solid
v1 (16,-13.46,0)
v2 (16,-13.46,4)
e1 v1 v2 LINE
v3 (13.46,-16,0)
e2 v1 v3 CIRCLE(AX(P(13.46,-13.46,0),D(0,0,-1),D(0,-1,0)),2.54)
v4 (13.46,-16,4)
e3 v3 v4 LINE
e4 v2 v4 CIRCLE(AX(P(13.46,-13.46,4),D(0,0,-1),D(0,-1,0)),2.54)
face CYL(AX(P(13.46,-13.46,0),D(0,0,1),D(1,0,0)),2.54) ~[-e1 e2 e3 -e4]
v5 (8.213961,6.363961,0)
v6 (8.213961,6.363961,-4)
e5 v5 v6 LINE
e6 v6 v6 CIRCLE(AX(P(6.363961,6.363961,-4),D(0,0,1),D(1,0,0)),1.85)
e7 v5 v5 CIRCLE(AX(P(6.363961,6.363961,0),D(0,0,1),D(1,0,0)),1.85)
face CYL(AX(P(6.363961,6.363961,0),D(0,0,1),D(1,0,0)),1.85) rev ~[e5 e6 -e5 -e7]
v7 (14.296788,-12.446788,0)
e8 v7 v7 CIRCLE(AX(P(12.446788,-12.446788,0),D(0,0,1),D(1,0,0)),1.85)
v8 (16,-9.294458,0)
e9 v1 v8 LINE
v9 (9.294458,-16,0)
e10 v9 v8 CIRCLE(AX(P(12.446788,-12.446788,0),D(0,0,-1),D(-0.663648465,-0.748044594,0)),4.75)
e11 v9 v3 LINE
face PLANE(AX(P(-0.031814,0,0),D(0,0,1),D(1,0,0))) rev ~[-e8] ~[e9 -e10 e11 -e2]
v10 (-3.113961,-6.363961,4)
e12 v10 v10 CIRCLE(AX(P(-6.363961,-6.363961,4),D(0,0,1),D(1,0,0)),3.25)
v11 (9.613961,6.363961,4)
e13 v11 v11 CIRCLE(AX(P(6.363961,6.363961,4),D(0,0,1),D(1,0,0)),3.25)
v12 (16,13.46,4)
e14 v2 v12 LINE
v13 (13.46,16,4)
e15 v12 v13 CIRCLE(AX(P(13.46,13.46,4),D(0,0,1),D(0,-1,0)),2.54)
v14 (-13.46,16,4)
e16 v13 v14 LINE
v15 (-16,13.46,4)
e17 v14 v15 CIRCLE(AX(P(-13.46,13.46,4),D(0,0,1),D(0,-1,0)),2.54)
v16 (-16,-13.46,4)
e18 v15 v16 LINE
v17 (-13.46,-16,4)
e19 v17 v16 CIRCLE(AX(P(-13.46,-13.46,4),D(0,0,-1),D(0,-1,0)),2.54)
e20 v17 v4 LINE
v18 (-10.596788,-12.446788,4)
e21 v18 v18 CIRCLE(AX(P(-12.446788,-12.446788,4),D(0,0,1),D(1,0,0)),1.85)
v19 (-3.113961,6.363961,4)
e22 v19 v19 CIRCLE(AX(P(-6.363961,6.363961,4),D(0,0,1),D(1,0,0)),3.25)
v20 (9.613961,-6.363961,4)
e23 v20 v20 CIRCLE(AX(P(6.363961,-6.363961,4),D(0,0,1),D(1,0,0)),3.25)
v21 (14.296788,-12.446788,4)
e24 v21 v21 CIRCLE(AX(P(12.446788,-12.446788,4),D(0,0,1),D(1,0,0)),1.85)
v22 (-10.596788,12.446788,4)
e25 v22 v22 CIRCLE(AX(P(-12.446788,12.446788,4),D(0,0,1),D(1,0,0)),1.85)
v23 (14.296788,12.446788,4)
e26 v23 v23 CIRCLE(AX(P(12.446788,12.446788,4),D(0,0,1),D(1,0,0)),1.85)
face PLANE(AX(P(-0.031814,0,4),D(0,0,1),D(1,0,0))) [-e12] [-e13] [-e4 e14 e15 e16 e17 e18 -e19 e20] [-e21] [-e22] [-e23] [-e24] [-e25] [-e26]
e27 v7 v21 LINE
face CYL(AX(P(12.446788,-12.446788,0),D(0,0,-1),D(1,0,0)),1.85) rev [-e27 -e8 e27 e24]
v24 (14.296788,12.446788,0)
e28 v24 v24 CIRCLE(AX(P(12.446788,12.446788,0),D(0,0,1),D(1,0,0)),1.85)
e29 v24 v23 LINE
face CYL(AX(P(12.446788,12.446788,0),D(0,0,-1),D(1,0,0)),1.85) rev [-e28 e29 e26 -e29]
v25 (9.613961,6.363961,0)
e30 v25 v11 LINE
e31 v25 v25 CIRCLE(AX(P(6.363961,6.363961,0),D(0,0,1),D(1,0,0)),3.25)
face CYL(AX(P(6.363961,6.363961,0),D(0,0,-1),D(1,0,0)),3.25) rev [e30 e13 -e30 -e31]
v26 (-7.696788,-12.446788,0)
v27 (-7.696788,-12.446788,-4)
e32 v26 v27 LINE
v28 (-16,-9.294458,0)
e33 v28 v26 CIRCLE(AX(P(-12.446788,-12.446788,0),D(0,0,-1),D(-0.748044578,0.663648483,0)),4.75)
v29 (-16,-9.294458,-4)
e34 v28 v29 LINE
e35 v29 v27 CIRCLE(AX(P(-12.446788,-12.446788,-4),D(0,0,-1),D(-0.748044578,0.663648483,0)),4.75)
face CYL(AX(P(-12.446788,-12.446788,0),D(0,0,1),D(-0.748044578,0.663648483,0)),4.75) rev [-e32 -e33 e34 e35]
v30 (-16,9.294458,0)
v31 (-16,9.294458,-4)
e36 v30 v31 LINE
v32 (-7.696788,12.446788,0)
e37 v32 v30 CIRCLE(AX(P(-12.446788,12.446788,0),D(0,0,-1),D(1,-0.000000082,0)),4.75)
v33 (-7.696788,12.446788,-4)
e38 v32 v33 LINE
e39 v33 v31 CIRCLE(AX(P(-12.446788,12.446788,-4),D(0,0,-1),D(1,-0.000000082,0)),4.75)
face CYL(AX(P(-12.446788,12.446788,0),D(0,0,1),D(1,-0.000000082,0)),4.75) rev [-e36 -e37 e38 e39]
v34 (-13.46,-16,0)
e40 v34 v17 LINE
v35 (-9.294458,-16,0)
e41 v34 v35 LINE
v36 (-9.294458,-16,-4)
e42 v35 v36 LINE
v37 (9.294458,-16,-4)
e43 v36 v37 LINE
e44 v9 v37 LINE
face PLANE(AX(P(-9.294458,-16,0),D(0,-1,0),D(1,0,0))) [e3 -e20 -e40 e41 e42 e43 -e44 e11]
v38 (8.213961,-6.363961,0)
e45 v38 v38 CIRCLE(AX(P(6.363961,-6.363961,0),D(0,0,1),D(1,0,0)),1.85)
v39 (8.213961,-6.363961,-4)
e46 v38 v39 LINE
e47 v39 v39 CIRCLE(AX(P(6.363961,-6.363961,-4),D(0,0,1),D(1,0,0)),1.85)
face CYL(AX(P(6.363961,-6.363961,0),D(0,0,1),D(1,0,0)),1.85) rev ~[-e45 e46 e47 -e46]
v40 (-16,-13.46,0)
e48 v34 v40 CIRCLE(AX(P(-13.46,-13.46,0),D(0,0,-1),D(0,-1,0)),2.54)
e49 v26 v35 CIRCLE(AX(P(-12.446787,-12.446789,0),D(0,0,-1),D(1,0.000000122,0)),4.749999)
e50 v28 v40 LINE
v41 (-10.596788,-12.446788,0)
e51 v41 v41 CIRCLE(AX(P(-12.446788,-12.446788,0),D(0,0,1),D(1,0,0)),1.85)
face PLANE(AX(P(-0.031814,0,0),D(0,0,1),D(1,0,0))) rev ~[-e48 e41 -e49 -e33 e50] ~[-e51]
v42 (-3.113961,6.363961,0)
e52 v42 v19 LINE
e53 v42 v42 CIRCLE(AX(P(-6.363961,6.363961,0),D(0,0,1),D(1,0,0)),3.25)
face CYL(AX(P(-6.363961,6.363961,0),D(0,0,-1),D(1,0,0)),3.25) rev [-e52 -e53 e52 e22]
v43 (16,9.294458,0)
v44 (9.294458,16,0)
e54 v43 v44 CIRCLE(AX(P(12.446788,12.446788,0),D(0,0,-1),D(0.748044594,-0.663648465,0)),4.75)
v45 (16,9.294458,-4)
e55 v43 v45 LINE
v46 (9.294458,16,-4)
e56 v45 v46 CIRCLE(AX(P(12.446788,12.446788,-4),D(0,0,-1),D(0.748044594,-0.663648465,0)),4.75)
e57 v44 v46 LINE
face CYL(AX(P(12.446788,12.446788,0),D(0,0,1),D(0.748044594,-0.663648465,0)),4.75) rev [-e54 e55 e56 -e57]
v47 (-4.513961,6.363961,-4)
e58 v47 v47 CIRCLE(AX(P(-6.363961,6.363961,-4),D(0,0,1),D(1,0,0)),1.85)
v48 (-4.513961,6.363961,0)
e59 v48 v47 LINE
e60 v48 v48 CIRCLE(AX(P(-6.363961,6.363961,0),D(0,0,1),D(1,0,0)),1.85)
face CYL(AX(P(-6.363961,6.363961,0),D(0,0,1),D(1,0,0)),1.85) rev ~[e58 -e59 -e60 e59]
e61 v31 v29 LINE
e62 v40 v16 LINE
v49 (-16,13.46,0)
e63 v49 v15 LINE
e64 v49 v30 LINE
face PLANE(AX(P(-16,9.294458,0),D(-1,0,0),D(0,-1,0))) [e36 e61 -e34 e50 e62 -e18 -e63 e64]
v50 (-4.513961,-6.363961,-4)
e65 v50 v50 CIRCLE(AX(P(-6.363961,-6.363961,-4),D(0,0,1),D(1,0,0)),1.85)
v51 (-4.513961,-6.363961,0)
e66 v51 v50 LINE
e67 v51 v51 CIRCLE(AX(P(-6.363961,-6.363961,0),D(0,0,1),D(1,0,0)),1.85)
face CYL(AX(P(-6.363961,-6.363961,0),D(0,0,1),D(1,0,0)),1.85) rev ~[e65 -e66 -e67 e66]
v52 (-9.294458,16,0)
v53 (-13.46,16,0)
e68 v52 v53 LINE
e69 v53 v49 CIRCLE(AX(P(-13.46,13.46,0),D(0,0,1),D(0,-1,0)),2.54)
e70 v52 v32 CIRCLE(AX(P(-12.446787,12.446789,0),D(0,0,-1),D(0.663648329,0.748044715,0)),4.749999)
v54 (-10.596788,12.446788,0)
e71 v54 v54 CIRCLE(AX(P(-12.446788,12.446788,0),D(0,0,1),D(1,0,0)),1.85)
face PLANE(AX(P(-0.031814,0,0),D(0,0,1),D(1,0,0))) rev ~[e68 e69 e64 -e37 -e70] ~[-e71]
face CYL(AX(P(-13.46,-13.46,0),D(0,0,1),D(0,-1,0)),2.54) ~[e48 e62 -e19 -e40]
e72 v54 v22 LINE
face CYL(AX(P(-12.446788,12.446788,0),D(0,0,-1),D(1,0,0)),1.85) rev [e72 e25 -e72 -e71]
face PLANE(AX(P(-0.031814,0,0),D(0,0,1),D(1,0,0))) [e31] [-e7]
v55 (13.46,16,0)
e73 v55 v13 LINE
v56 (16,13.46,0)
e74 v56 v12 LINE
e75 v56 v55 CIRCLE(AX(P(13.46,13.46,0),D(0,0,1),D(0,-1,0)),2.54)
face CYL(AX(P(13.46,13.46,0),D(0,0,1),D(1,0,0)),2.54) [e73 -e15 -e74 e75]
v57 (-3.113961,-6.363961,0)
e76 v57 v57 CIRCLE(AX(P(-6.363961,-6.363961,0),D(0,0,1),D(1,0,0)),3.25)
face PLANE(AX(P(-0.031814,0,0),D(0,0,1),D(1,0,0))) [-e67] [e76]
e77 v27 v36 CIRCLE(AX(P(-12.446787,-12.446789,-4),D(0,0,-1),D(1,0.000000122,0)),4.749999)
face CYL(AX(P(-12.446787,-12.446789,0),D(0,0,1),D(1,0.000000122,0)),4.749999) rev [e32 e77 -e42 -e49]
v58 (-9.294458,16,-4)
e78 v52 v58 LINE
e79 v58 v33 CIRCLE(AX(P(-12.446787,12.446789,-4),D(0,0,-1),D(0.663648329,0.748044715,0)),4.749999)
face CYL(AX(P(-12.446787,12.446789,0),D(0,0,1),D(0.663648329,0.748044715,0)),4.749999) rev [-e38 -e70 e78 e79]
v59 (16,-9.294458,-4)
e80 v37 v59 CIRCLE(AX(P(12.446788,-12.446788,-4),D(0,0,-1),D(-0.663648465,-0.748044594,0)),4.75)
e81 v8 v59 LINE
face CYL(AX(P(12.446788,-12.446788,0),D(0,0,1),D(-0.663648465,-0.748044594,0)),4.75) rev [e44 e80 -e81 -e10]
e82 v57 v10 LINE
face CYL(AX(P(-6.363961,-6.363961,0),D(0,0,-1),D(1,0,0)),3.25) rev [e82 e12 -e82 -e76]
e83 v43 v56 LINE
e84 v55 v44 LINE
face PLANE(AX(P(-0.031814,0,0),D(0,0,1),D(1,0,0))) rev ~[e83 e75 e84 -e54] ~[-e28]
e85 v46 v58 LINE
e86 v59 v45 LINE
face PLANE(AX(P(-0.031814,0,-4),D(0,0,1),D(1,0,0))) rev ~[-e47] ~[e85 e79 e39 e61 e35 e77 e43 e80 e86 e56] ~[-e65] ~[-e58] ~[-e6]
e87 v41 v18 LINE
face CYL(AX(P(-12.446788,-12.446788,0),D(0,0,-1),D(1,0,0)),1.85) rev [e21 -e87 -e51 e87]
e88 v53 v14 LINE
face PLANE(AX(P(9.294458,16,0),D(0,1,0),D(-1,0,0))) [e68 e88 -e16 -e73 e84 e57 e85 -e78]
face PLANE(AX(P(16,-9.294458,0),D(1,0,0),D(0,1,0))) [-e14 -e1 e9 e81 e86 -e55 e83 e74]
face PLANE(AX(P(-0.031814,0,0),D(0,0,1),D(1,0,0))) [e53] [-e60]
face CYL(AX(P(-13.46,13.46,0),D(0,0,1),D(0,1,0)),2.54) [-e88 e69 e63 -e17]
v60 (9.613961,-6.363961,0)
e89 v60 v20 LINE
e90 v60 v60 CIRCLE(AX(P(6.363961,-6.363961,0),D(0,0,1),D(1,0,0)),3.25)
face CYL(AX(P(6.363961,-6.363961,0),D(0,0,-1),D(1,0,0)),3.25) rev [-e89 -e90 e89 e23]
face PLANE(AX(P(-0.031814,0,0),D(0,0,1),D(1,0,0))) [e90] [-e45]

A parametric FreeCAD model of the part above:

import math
import FreeCAD as App
import Part
import Sketcher
Q = App.Units.Quantity


def edges_at(feature, points):
    """Names of the edges that pass closest to the given points."""
    edges = feature.Shape.Edges
    near = lambda p: min(range(len(edges)), key=lambda i: edges[i].distToShape(Part.Vertex(*p))[0])
    return sorted({f"Edge{near(p) + 1}" for p in points})


def add_polygon(sketch, points):
    """Adds a closed chain of lines whose ends are joined by coincident constraints."""
    first, n = sketch.GeometryCount, len(points)
    for a, b in zip(points, points[1:] + points[:1]):
        sketch.addGeometry(Part.LineSegment(App.Vector(*a, 0), App.Vector(*b, 0)), False)
    for i in range(n):
        sketch.addConstraint(Sketcher.Constraint("Coincident", first + i, 2, first + (i + 1) % n, 1))

doc = App.newDocument("Part")
body = doc.addObject("PartDesign::Body", "Body")

# Sketch on XY plane
sketch1 = doc.addObject("Sketcher::SketchObject", "Sketch")
body.addObject(sketch1)
sketch1.AttachmentSupport = (doc.XY_Plane, [""])
sketch1.MapMode = "FlatFace"
add_polygon(sketch1, [(-16, 16), (-16, -16), (16, -16), (16, 16)])  # lines 0-3
sketch1.addGeometry(Part.Circle(App.Vector(-12.4, -12.4, 0), App.Vector(0, 0, 1), 1.9), False)  # 4
sketch1.addGeometry(Part.Circle(App.Vector(-6.4, -6.4, 0), App.Vector(0, 0, 1), 3.2), False)  # 5
sketch1.addGeometry(Part.Circle(App.Vector(12.4, -12.4, 0), App.Vector(0, 0, 1), 1.9), False)  # 6
sketch1.addGeometry(Part.Circle(App.Vector(6.4, -6.4, 0), App.Vector(0, 0, 1), 3.2), False)  # 7
sketch1.addGeometry(Part.Circle(App.Vector(-6.4, 6.4, 0), App.Vector(0, 0, 1), 3.2), False)  # 8
sketch1.addGeometry(Part.Circle(App.Vector(-12.4, 12.4, 0), App.Vector(0, 0, 1), 1.9), False)  # 9
sketch1.addGeometry(Part.Circle(App.Vector(6.4, 6.4, 0), App.Vector(0, 0, 1), 3.2), False)  # 10
sketch1.addGeometry(Part.Circle(App.Vector(12.4, 12.4, 0), App.Vector(0, 0, 1), 1.9), False)  # 11
sketch1.addConstraint([
    Sketcher.Constraint("Vertical", 0),
    Sketcher.Constraint("Horizontal", 1),
    Sketcher.Constraint("Vertical", 2),
    Sketcher.Constraint("Horizontal", 3),
    Sketcher.Constraint("Equal", 4, 6),
    Sketcher.Constraint("Equal", 5, 7),
    Sketcher.Constraint("Equal", 7, 8),
    Sketcher.Constraint("Equal", 6, 9),
    Sketcher.Constraint("Equal", 8, 10),
    Sketcher.Constraint("Equal", 9, 11),
    Sketcher.Constraint("Symmetric", 7, 3, 8, 3, -1, 1),
    Sketcher.Constraint("Symmetric", 6, 3, 9, 3, -1, 1),
    Sketcher.Constraint("Symmetric", 5, 3, 10, 3, -1, 1),
    Sketcher.Constraint("Symmetric", 4, 3, 11, 3, -1, 1),
    Sketcher.Constraint("Symmetric", 0, 2, 2, 2, -1, 1),
    Sketcher.Constraint("Symmetric", 4, 3, 6, 3, -2),
    Sketcher.Constraint("Symmetric", 5, 3, 7, 3, -2),
    Sketcher.Constraint("Equal", 3, 0),
    Sketcher.Constraint("Diameter", 4, Q("3.7 mm")),
    Sketcher.Constraint("Diameter", 5, Q("6.5 mm")),
    Sketcher.Constraint("DistanceX", 1, 1, 1, 2, Q("32 mm")),
    Sketcher.Constraint("DistanceX", 5, 3, -1, 1, Q("6.363961 mm")),
    Sketcher.Constraint("DistanceY", 5, 3, -1, 1, Q("6.363961 mm")),
    Sketcher.Constraint("DistanceX", 5, 3, 6, 3, Q("18.810749 mm")),
    Sketcher.Constraint("DistanceY", 4, 3, 8, 3, Q("18.810749 mm")),
])
pad1 = doc.addObject("PartDesign::Pad", "Pad")
body.addObject(pad1)
pad1.Profile = sketch1
pad1.Length = 4

# Sketch on XY plane
sketch2 = doc.addObject("Sketcher::SketchObject", "Sketch001")
body.addObject(sketch2)
sketch2.AttachmentSupport = (doc.XY_Plane, [""])
sketch2.MapMode = "FlatFace"
sketch2.addGeometry([
    Part.ArcOfCircle(Part.Circle(App.Vector(12.4, 12.4, 0), App.Vector(0, 0, 1), 4.7), math.radians(132), math.radians(318)),  # 0
    Part.LineSegment(App.Vector(9.3, 16, 0), App.Vector(-9.3, 16, 0)),  # 1
    Part.ArcOfCircle(Part.Circle(App.Vector(-12.4, 12.4, 0), App.Vector(0, 0, 1), 4.7), math.radians(0), math.radians(48)),  # 2
    Part.ArcOfCircle(Part.Circle(App.Vector(-12.4, 12.4, 0), App.Vector(0, 0, 1), 4.8), math.radians(-138), math.radians(0)),  # 3
    Part.LineSegment(App.Vector(-16, 9.3, 0), App.Vector(-16, -9.3, 0)),  # 4
    Part.ArcOfCircle(Part.Circle(App.Vector(-12.4, -12.4, 0), App.Vector(0, 0, 1), 4.8), math.radians(0), math.radians(138)),  # 5
    Part.ArcOfCircle(Part.Circle(App.Vector(-12.4, -12.4, 0), App.Vector(0, 0, 1), 4.7), math.radians(-48), math.radians(0)),  # 6
    Part.LineSegment(App.Vector(-9.3, -16, 0), App.Vector(9.3, -16, 0)),  # 7
    Part.ArcOfCircle(Part.Circle(App.Vector(12.4, -12.4, 0), App.Vector(0, 0, 1), 4.7), math.radians(42), math.radians(228)),  # 8
    Part.LineSegment(App.Vector(16, -9.3, 0), App.Vector(16, 9.3, 0)),  # 9
    Part.Circle(App.Vector(-6.4, -6.4, 0), App.Vector(0, 0, 1), 1.9),  # 10
    Part.Circle(App.Vector(6.4, -6.4, 0), App.Vector(0, 0, 1), 1.9),  # 11
    Part.Circle(App.Vector(-6.4, 6.4, 0), App.Vector(0, 0, 1), 1.9),  # 12
    Part.Circle(App.Vector(6.4, 6.4, 0), App.Vector(0, 0, 1), 1.9),  # 13
], False)
sketch2.addConstraint([
    Sketcher.Constraint("Coincident", 0, 1, 1, 1),
    Sketcher.Constraint("Coincident", 1, 2, 2, 2),
    Sketcher.Constraint("Tangent", 2, 1, 3, 2),
    Sketcher.Constraint("Coincident", 3, 1, 4, 1),
    Sketcher.Constraint("Coincident", 4, 2, 5, 2),
    Sketcher.Constraint("Tangent", 5, 1, 6, 2),
    Sketcher.Constraint("Coincident", 6, 1, 7, 1),
    Sketcher.Constraint("Coincident", 7, 2, 8, 2),
    Sketcher.Constraint("Coincident", 8, 1, 9, 1),
    Sketcher.Constraint("Coincident", 9, 2, 0, 2),
    Sketcher.Constraint("Horizontal", 1),
    Sketcher.Constraint("Vertical", 4),
    Sketcher.Constraint("Horizontal", 7),
    Sketcher.Constraint("Vertical", 9),
    Sketcher.Constraint("Equal", 0, 2),
    Sketcher.Constraint("Equal", 2, 3),
    Sketcher.Constraint("Equal", 3, 5),
    Sketcher.Constraint("Equal", 5, 6),
    Sketcher.Constraint("Equal", 6, 8),
    Sketcher.Constraint("Equal", 10, 11),
    Sketcher.Constraint("Equal", 11, 12),
    Sketcher.Constraint("Equal", 12, 13),
    Sketcher.Constraint("Symmetric", 0, 3, 5, 3, -1, 1),
    Sketcher.Constraint("Symmetric", 2, 3, 8, 3, -1, 1),
    Sketcher.Constraint("Symmetric", 11, 3, 12, 3, -1, 1),
    Sketcher.Constraint("Symmetric", 10, 3, 13, 3, -1, 1),
    Sketcher.Constraint("Symmetric", 0, 3, 2, 3, -2),
    Sketcher.Constraint("Symmetric", 10, 3, 11, 3, -2),
    Sketcher.Constraint("Horizontal", 3, 3, 2, 1),
    Sketcher.Constraint("Horizontal", 8, 3, 5, 1),
    Sketcher.Constraint("Horizontal", 4, 2, 8, 1),
    Sketcher.Constraint("Vertical", 1, 2, 6, 1),
    Sketcher.Constraint("Equal", 7, 4),
    Sketcher.Constraint("Diameter", 10, Q("3.7 mm")),
    Sketcher.Constraint("Radius", 0, Q("4.75 mm")),
    Sketcher.Constraint("DistanceY", -1, 1, 0, 1, Q("16 mm")),
    Sketcher.Constraint("DistanceX", 3, 1, -1, 1, Q("16 mm")),
    Sketcher.Constraint("DistanceX", 1, 2, 1, 1, Q("18.588916 mm")),
    Sketcher.Constraint("DistanceX", 10, 3, -1, 1, Q("6.363961 mm")),
    Sketcher.Constraint("DistanceY", 10, 3, -1, 1, Q("6.363961 mm")),
])
pad2 = doc.addObject("PartDesign::Pad", "Pad001")
body.addObject(pad2)
pad2.Profile = sketch2
pad2.Length = 4
pad2.Reversed = True
doc.recompute()

fillet = doc.addObject("PartDesign::Fillet", "Fillet")
body.addObject(fillet)
fillet.Base = (pad2, edges_at(pad2, [
    (16, 16, 2),
    (-16, 16, 2),
    (-16, -16, 2),
    (16, -16, 2),
]))
fillet.Radius = 2.54

doc.recompute()
